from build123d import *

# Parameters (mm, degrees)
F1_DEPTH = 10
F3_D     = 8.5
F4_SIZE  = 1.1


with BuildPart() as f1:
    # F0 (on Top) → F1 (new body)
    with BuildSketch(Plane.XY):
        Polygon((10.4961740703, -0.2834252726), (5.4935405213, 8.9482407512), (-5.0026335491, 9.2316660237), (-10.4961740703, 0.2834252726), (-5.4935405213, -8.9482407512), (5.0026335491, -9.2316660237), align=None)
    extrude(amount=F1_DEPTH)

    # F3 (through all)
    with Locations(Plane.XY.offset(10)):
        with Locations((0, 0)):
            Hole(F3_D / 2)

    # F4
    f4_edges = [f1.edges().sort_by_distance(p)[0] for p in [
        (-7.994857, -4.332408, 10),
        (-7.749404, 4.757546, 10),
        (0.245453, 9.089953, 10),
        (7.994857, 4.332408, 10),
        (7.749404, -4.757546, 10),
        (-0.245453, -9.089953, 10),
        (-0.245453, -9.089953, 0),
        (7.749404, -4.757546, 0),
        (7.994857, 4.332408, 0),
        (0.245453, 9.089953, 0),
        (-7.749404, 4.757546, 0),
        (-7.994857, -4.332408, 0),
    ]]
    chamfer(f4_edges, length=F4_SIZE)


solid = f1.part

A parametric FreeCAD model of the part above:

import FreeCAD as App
import Part
import Sketcher


def edges_at(feature, points):
    """Names of the edges that pass closest to the given points."""
    edges = feature.Shape.Edges
    near = lambda p: min(range(len(edges)), key=lambda i: edges[i].distToShape(Part.Vertex(*p))[0])
    return sorted({f"Edge{near(p) + 1}" for p in points})


def add_polygon(sketch, points):
    """Adds a closed chain of lines whose ends are joined by coincident constraints."""
    first, n = sketch.GeometryCount, len(points)
    for a, b in zip(points, points[1:] + points[:1]):
        sketch.addGeometry(Part.LineSegment(App.Vector(*a, 0), App.Vector(*b, 0)), False)
    for i in range(n):
        sketch.addConstraint(Sketcher.Constraint("Coincident", first + i, 2, first + (i + 1) % n, 1))

doc = App.newDocument("Part")
body = doc.addObject("PartDesign::Body", "Body")

# Sketch on XY plane
sketch1 = body.newObject("Sketcher::SketchObject", "Sketch")
sketch1.AttachmentSupport = (doc.getObject("XY_Plane"), [""])
sketch1.MapMode = "FlatFace"
add_polygon(sketch1, [(10.496174, -0.283425), (5.493541, 8.948241), (-5.002634, 9.231666), (-10.496174, 0.283425), (-5.493541, -8.948241), (5.002634, -9.231666)])  # lines 0-5
sketch1.addConstraint(Sketcher.Constraint("Symmetric", 0, 2, 3, 2, -1, 1))
sketch1.addConstraint(Sketcher.Constraint("Symmetric", 1, 2, 4, 2, -1, 1))
sketch1.addConstraint(Sketcher.Constraint("Symmetric", 2, 2, 5, 2, -1, 1))
sketch1.addConstraint(Sketcher.Constraint("Equal", 0, 1))
sketch1.addConstraint(Sketcher.Constraint("Equal", 1, 2))
sketch1.addConstraint(Sketcher.Constraint("Distance", 0, 10.5))
sketch1.addConstraint(Sketcher.Constraint("DistanceX", -1, 1, 0, 2, 5.493541))
sketch1.addConstraint(Sketcher.Constraint("DistanceY", -1, 1, 0, 2, 8.948241))
sketch1.addConstraint(Sketcher.Constraint("DistanceX", 2, 2, 1, 2, 5.493541))
pad1 = body.newObject("PartDesign::Pad", "Pad")
pad1.Profile = sketch1
pad1.Length = 10

# Sketch on XY plane
sketch2 = body.newObject("Sketcher::SketchObject", "Sketch001")
sketch2.AttachmentSupport = (doc.getObject("XY_Plane"), [""])
sketch2.MapMode = "FlatFace"
sketch2.AttachmentOffset = App.Placement(App.Vector(0, 0, 10), App.Rotation())
sketch2.addGeometry(Part.Circle(App.Vector(0, 0, 0), App.Vector(0, 0, 1), 4.25), False)
sketch2.addConstraint(Sketcher.Constraint("Coincident", 0, 3, -1, 1))
sketch2.addConstraint(Sketcher.Constraint("Diameter", 0, 8.5))
doc.recompute()
hole = body.newObject("PartDesign::Hole", "Hole")
hole.Profile = sketch2
hole.ThreadType = "None"
hole.Diameter = 8.5
hole.DepthType = "ThroughAll"
doc.recompute()

chamfer = body.newObject("PartDesign::Chamfer", "Chamfer")
chamfer.Base = (hole, edges_at(hole, [
    (-7.995, -4.332, 10),
    (-7.749, 4.758, 10),
    (0.245, 9.09, 10),
    (7.995, 4.332, 10),
    (7.749, -4.758, 10),
    (-0.245, -9.09, 10),
    (-0.245, -9.09, 0),
    (7.749, -4.758, 0),
    (7.995, 4.332, 0),
    (0.245, 9.09, 0),
    (-7.749, 4.758, 0),
    (-7.995, -4.332, 0),
]))
chamfer.Size = 1.1

doc.recompute()
